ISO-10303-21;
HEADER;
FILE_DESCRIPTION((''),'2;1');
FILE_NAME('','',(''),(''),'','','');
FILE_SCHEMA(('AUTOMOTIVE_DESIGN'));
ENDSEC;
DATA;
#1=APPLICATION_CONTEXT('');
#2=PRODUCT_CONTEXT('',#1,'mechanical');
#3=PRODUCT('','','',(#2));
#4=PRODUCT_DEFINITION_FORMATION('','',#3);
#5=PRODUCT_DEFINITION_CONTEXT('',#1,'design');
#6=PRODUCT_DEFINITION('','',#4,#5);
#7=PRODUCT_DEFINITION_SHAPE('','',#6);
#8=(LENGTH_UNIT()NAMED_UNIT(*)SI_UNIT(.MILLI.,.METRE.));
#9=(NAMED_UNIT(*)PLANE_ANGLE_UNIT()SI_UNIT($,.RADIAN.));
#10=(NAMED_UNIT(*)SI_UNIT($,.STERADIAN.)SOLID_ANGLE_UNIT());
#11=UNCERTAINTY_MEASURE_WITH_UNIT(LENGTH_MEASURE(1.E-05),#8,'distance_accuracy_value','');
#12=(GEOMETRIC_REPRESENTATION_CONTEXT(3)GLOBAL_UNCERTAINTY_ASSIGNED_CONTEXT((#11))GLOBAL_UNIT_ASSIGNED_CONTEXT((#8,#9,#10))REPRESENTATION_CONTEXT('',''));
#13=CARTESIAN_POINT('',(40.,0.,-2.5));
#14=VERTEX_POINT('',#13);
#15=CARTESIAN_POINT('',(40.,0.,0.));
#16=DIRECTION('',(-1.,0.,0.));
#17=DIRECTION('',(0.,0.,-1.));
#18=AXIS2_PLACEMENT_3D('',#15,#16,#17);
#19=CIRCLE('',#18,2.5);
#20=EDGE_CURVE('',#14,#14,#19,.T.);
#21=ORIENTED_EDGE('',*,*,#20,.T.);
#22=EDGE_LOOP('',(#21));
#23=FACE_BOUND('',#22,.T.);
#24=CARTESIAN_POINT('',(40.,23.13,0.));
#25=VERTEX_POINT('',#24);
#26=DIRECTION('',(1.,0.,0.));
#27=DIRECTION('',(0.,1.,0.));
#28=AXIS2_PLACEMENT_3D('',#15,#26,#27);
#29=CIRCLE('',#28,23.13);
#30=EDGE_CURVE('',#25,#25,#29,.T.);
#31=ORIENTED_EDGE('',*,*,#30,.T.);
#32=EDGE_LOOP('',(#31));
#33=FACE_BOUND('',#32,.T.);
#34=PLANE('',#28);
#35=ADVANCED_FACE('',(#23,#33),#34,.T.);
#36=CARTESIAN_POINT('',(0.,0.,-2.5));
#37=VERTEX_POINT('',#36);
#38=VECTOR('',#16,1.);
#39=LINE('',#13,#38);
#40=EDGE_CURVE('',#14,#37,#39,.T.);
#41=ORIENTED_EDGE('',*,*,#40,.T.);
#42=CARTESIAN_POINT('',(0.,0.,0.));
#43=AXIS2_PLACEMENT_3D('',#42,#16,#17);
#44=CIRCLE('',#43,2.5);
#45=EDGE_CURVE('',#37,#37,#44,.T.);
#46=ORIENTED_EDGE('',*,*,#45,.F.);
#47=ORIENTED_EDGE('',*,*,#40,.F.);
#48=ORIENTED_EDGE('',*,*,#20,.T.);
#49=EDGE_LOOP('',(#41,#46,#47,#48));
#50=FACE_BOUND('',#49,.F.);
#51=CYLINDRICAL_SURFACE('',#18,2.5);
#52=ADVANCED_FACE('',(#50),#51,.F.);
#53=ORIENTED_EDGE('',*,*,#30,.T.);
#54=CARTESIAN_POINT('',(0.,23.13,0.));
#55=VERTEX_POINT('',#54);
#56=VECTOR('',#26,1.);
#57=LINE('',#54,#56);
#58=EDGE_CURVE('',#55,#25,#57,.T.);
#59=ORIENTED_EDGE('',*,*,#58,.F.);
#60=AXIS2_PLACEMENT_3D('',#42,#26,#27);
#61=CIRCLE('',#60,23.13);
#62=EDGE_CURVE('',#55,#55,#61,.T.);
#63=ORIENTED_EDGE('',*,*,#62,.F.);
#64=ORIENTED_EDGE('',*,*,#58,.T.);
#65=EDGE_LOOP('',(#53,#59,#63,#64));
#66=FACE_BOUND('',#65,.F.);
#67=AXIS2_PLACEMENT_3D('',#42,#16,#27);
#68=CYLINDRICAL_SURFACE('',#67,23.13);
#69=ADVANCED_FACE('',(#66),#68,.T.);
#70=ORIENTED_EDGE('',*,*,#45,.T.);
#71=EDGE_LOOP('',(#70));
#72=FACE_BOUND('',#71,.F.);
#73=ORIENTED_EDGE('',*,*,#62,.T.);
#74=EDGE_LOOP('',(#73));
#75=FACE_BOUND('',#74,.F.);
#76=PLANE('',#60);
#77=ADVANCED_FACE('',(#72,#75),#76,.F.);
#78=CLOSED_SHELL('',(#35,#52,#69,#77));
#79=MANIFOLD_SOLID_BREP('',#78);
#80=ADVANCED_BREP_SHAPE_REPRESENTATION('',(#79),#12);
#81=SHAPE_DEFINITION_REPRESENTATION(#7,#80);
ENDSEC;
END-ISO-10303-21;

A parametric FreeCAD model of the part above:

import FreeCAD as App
import Part
import Sketcher
Q = App.Units.Quantity

doc = App.newDocument("Part")
body = doc.addObject("PartDesign::Body", "Body")

# Sketch on YZ plane
sketch1 = body.newObject("Sketcher::SketchObject", "Sketch")
sketch1.AttachmentSupport = (doc.getObject("YZ_Plane"), [""])
sketch1.MapMode = "FlatFace"
sketch1.addGeometry(Part.Circle(App.Vector(0, 0, 0), App.Vector(0, 0, 1), 23.13), False)
sketch1.addConstraint([
    Sketcher.Constraint("Coincident", 0, 3, -1, 1),
    Sketcher.Constraint("Diameter", 0, Q("46.26 mm")),
])
pad1 = body.newObject("PartDesign::Pad", "Pad")
pad1.Profile = sketch1
pad1.Length = 40

# Sketch on YZ plane
sketch2 = body.newObject("Sketcher::SketchObject", "Sketch001")
sketch2.AttachmentSupport = (doc.getObject("YZ_Plane"), [""])
sketch2.MapMode = "FlatFace"
sketch2.AttachmentOffset = App.Placement(App.Vector(0, 0, 40), App.Rotation())
sketch2.addGeometry(Part.Circle(App.Vector(0, 0, 0), App.Vector(0, 0, 1), 2.5), False)
sketch2.addConstraint([
    Sketcher.Constraint("Coincident", 0, 3, -1, 1),
    Sketcher.Constraint("Diameter", 0, Q("5 mm")),
])
doc.recompute()
hole = body.newObject("PartDesign::Hole", "Hole")
hole.Profile = sketch2
hole.ThreadType = "None"
hole.Diameter = 5
hole.DepthType = "Dimension"
hole.Depth = 40
hole.DrillPoint = "Flat"

doc.recompute()
